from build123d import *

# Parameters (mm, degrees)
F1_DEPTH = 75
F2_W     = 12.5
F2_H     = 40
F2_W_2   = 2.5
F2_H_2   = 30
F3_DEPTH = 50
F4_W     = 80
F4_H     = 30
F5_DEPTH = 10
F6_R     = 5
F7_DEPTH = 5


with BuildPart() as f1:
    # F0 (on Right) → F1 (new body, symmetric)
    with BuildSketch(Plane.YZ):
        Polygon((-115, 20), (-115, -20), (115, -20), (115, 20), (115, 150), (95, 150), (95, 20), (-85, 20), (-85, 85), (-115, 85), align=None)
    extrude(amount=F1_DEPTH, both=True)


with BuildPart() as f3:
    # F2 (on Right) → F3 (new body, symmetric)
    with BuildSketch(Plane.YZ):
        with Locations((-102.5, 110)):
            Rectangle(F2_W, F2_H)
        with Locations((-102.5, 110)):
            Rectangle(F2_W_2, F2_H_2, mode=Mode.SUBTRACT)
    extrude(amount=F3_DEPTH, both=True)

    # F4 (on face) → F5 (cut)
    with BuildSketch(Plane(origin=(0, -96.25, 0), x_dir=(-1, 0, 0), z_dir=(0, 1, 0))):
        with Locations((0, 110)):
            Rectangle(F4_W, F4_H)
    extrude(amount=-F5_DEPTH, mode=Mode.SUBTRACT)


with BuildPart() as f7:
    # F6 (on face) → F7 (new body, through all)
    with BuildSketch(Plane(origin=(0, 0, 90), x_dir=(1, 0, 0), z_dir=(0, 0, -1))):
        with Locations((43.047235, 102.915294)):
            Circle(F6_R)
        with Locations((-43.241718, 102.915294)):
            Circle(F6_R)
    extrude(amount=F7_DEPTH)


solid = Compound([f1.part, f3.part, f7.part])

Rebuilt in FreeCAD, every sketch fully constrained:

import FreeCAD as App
import Part
import Sketcher
Q = App.Units.Quantity

doc = App.newDocument("Part")
body = doc.addObject("PartDesign::Body", "Body")

sketch1 = body.newObject("Sketcher::SketchObject", "Sketch")
sketch1.AttachmentSupport = (doc.getObject("YZ_Plane"), [""])
sketch1.MapMode = "FlatFace"
sketch1.addGeometry([
    Part.LineSegment(App.Vector(-115, -20, 0), App.Vector(115, -20, 0)),
    Part.LineSegment(App.Vector(115, -20, 0), App.Vector(115, 150, 0)),
    Part.LineSegment(App.Vector(115, 150, 0), App.Vector(95, 150, 0)),
    Part.LineSegment(App.Vector(95, 150, 0), App.Vector(95, 20, 0)),
    Part.LineSegment(App.Vector(95, 20, 0), App.Vector(-85, 20, 0)),
    Part.LineSegment(App.Vector(-85, 20, 0), App.Vector(-85, 85, 0)),
    Part.LineSegment(App.Vector(-85, 85, 0), App.Vector(-115, 85, 0)),
    Part.LineSegment(App.Vector(-115, 85, 0), App.Vector(-115, -20, 0)),
], False)
sketch1.addConstraint([
    Sketcher.Constraint("Coincident", 0, 2, 1, 1),
    Sketcher.Constraint("Coincident", 1, 2, 2, 1),
    Sketcher.Constraint("Coincident", 2, 2, 3, 1),
    Sketcher.Constraint("Coincident", 3, 2, 4, 1),
    Sketcher.Constraint("Coincident", 4, 2, 5, 1),
    Sketcher.Constraint("Coincident", 5, 2, 6, 1),
    Sketcher.Constraint("Coincident", 6, 2, 7, 1),
    Sketcher.Constraint("Coincident", 7, 2, 0, 1),
    Sketcher.Constraint("Horizontal", 0),
    Sketcher.Constraint("Vertical", 1),
    Sketcher.Constraint("Horizontal", 2),
    Sketcher.Constraint("Vertical", 3),
    Sketcher.Constraint("Horizontal", 4),
    Sketcher.Constraint("Vertical", 5),
    Sketcher.Constraint("Horizontal", 6),
    Sketcher.Constraint("Vertical", 7),
    Sketcher.Constraint("DistanceX", 0, 1, 0, 2, Q("230 mm")),
    Sketcher.Constraint("DistanceX", 2, 2, 2, 1, Q("20 mm")),
    Sketcher.Constraint("DistanceX", 4, 2, 4, 1, Q("180 mm")),
    Sketcher.Constraint("DistanceY", 1, 1, 1, 2, Q("170 mm")),
    Sketcher.Constraint("DistanceY", 3, 2, 3, 1, Q("130 mm")),
    Sketcher.Constraint("DistanceY", 5, 1, 5, 2, Q("65 mm")),
    Sketcher.Constraint("DistanceX", -1, 1, 0, 2, Q("115 mm")),
    Sketcher.Constraint("DistanceY", 0, 2, -1, 1, Q("20 mm")),
])
pad1 = body.newObject("PartDesign::Pad", "Pad")
pad1.Profile = sketch1
pad1.Length = 150
pad1.Midplane = True
body2 = doc.addObject("PartDesign::Body", "Body001")

sketch2 = body2.newObject("Sketcher::SketchObject", "Sketch001")
sketch2.AttachmentSupport = (doc.getObject("YZ_Plane001"), [""])
sketch2.MapMode = "FlatFace"
sketch2.addGeometry([
    Part.LineSegment(App.Vector(-108.8, 130, 0), App.Vector(-108.8, 90, 0)),
    Part.LineSegment(App.Vector(-108.8, 90, 0), App.Vector(-96.2, 90, 0)),
    Part.LineSegment(App.Vector(-96.2, 90, 0), App.Vector(-96.2, 130, 0)),
    Part.LineSegment(App.Vector(-96.2, 130, 0), App.Vector(-108.8, 130, 0)),
    Part.LineSegment(App.Vector(-101.2, 95, 0), App.Vector(-103.8, 95, 0)),
    Part.LineSegment(App.Vector(-103.8, 95, 0), App.Vector(-103.8, 125, 0)),
    Part.LineSegment(App.Vector(-103.8, 125, 0), App.Vector(-101.2, 125, 0)),
    Part.LineSegment(App.Vector(-101.2, 125, 0), App.Vector(-101.2, 95, 0)),
], False)
sketch2.addConstraint([
    Sketcher.Constraint("Coincident", 0, 2, 1, 1),
    Sketcher.Constraint("Coincident", 1, 2, 2, 1),
    Sketcher.Constraint("Coincident", 2, 2, 3, 1),
    Sketcher.Constraint("Coincident", 3, 2, 0, 1),
    Sketcher.Constraint("Coincident", 4, 2, 5, 1),
    Sketcher.Constraint("Coincident", 5, 2, 6, 1),
    Sketcher.Constraint("Coincident", 6, 2, 7, 1),
    Sketcher.Constraint("Coincident", 7, 2, 4, 1),
    Sketcher.Constraint("Vertical", 0),
    Sketcher.Constraint("Horizontal", 1),
    Sketcher.Constraint("Vertical", 2),
    Sketcher.Constraint("Horizontal", 3),
    Sketcher.Constraint("Horizontal", 4),
    Sketcher.Constraint("Vertical", 5),
    Sketcher.Constraint("Horizontal", 6),
    Sketcher.Constraint("Vertical", 7),
    Sketcher.Constraint("DistanceY", 0, 2, 0, 1, Q("40 mm")),
    Sketcher.Constraint("DistanceY", 5, 1, 5, 2, Q("30 mm")),
    Sketcher.Constraint("DistanceX", 1, 1, 1, 2, Q("12.5 mm")),
    Sketcher.Constraint("DistanceX", 4, 2, 4, 1, Q("2.5 mm")),
    Sketcher.Constraint("DistanceY", -1, 1, 0, 2, Q("90 mm")),
    Sketcher.Constraint("DistanceY", -1, 1, 4, 2, Q("95 mm")),
    Sketcher.Constraint("DistanceX", 0, 2, 4, 2, Q("5 mm")),
    Sketcher.Constraint("DistanceX", 0, 2, -1, 1, Q("108.75 mm")),
])
pad2 = body2.newObject("PartDesign::Pad", "Pad001")
pad2.Profile = sketch2
pad2.Length = 100
pad2.Midplane = True

sketch3 = body2.newObject("Sketcher::SketchObject", "Sketch002")
sketch3.AttachmentSupport = (doc.getObject("XZ_Plane001"), [""])
sketch3.MapMode = "FlatFace"
sketch3.AttachmentOffset = App.Placement(App.Vector(0, 0, 96.25), App.Rotation())
sketch3.addGeometry([
    Part.LineSegment(App.Vector(40, 125, 0), App.Vector(40, 95, 0)),
    Part.LineSegment(App.Vector(40, 95, 0), App.Vector(-40, 95, 0)),
    Part.LineSegment(App.Vector(-40, 95, 0), App.Vector(-40, 125, 0)),
    Part.LineSegment(App.Vector(-40, 125, 0), App.Vector(40, 125, 0)),
], False)
sketch3.addConstraint([
    Sketcher.Constraint("Coincident", 0, 2, 1, 1),
    Sketcher.Constraint("Coincident", 1, 2, 2, 1),
    Sketcher.Constraint("Coincident", 2, 2, 3, 1),
    Sketcher.Constraint("Coincident", 3, 2, 0, 1),
    Sketcher.Constraint("Vertical", 0),
    Sketcher.Constraint("Horizontal", 1),
    Sketcher.Constraint("Vertical", 2),
    Sketcher.Constraint("Horizontal", 3),
    Sketcher.Constraint("DistanceX", 1, 2, 1, 1, Q("80 mm")),
    Sketcher.Constraint("DistanceY", 0, 2, 0, 1, Q("30 mm")),
    Sketcher.Constraint("DistanceX", -1, 1, 0, 2, Q("40 mm")),
    Sketcher.Constraint("DistanceY", -1, 1, 0, 2, Q("95 mm")),
])
pocket1 = body2.newObject("PartDesign::Pocket", "Pocket")
pocket1.Profile = sketch3
pocket1.Length = 10
pocket1.Reversed = True
body3 = doc.addObject("PartDesign::Body", "Body002")
body3.AllowCompound = True

sketch4 = body3.newObject("Sketcher::SketchObject", "Sketch003")
sketch4.AttachmentSupport = (doc.getObject("XY_Plane002"), [""])
sketch4.MapMode = "FlatFace"
sketch4.AttachmentOffset = App.Placement(App.Vector(0, 0, 90), App.Rotation())
sketch4.addGeometry([
    Part.Circle(App.Vector(43, -103, 0), App.Vector(0, 0, 1), 5),
    Part.Circle(App.Vector(-43, -103, 0), App.Vector(0, 0, 1), 5),
], False)
sketch4.addConstraint([
    Sketcher.Constraint("Equal", 0, 1),
    Sketcher.Constraint("Horizontal", 0, 3, 1, 3),
    Sketcher.Constraint("Diameter", 0, Q("10 mm")),
    Sketcher.Constraint("DistanceX", -1, 1, 0, 3, Q("43.047235 mm")),
    Sketcher.Constraint("DistanceY", 0, 3, -1, 1, Q("102.915294 mm")),
    Sketcher.Constraint("DistanceX", 1, 3, -1, 1, Q("43.241718 mm")),
])
pad3 = body3.newObject("PartDesign::Pad", "Pad002")
pad3.Profile = sketch4
pad3.Length = 5
pad3.Reversed = True

doc.recompute()
